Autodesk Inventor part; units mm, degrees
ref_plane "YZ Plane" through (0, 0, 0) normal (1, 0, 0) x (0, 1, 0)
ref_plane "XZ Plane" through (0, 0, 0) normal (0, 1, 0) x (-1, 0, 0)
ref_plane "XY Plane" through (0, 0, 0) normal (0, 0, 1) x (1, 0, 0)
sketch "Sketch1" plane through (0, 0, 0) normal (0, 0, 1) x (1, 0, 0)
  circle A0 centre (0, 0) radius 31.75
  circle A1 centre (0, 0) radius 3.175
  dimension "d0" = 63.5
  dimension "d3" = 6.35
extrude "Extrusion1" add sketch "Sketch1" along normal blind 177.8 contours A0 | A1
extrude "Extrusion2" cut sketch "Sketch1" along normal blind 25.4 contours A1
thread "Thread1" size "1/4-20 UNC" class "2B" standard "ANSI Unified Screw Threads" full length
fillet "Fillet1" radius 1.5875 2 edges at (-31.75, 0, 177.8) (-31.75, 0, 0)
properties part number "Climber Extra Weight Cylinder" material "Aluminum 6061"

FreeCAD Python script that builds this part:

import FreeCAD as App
import Part
import Sketcher

V = App.Vector
Q = App.Units.Quantity


def edges_at(feature, points):
    """Names of the edges that pass closest to the given points."""
    edges = feature.Shape.Edges
    near = lambda p: min(range(len(edges)), key=lambda i: edges[i].distToShape(Part.Vertex(*p))[0])
    return sorted({f"Edge{near(p) + 1}" for p in points})

doc = App.newDocument("Part")
body = doc.addObject("PartDesign::Body", "Body")

sketch1 = doc.addObject("Sketcher::SketchObject", "Sketch")
body.addObject(sketch1)
sketch1.AttachmentSupport = (doc.XY_Plane, [""])
sketch1.MapMode = "FlatFace"
sketch1.addGeometry(Part.Circle(V(0, 0, 0), V(0, 0, 1), 31.75), False)
sketch1.addConstraint([
    Sketcher.Constraint("Coincident", 0, 3, -1, 1),
    Sketcher.Constraint("Diameter", 0, Q("2.5 in")),
])
pad1 = doc.addObject("PartDesign::Pad", "Pad")
body.addObject(pad1)
pad1.Profile = sketch1
pad1.Length = Q("7 in")

sketch2 = doc.addObject("Sketcher::SketchObject", "Sketch001")
body.addObject(sketch2)
sketch2.AttachmentSupport = (doc.XY_Plane, [""])
sketch2.MapMode = "FlatFace"
sketch2.addGeometry(Part.Circle(V(0, 0, 0), V(0, 0, 1), 3.175), False)
sketch2.addConstraint([
    Sketcher.Constraint("Coincident", 0, 3, -1, 1),
    Sketcher.Constraint("Diameter", 0, Q("0.25 in")),
])
pocket1 = doc.addObject("PartDesign::Pocket", "Pocket")
body.addObject(pocket1)
pocket1.Profile = sketch2
pocket1.Length = Q("1 in")
pocket1.Reversed = True
doc.recompute()

fillet = doc.addObject("PartDesign::Fillet", "Fillet")
body.addObject(fillet)
fillet.Base = (pocket1, edges_at(pocket1, [(-31.75, 0, 177.8), (-31.75, 0, 0)]))
fillet.Radius = Q("0.0625 in")

doc.recompute()
